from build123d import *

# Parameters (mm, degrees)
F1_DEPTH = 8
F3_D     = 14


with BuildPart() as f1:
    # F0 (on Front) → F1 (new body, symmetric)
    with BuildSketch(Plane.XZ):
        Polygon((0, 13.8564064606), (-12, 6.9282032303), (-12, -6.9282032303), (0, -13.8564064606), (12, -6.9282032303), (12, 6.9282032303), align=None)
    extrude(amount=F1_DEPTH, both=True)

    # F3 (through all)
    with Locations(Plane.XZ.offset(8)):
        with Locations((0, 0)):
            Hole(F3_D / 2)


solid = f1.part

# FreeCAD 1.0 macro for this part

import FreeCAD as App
import Part
import Sketcher

V = App.Vector
Q = App.Units.Quantity

doc = App.newDocument("Part")
body = doc.addObject("PartDesign::Body", "Body")

sketch1 = body.newObject("Sketcher::SketchObject", "Sketch")
sketch1.AttachmentSupport = (doc.getObject("XZ_Plane"), [""])
sketch1.MapMode = "FlatFace"
sketch1.addGeometry([
    Part.LineSegment(V(0, 13.856406, 0), V(-12, 6.928203, 0)),
    Part.LineSegment(V(-12, 6.928203, 0), V(-12, -6.928203, 0)),
    Part.LineSegment(V(-12, -6.928203, 0), V(0, -13.856406, 0)),
    Part.LineSegment(V(0, -13.856406, 0), V(12, -6.928203, 0)),
    Part.LineSegment(V(12, -6.928203, 0), V(12, 6.928203, 0)),
    Part.LineSegment(V(12, 6.928203, 0), V(0, 13.856406, 0)),
], False)
sketch1.addConstraint([
    Sketcher.Constraint("Coincident", 0, 2, 1, 1),
    Sketcher.Constraint("Coincident", 1, 2, 2, 1),
    Sketcher.Constraint("Coincident", 2, 2, 3, 1),
    Sketcher.Constraint("Coincident", 3, 2, 4, 1),
    Sketcher.Constraint("Coincident", 4, 2, 5, 1),
    Sketcher.Constraint("Coincident", 5, 2, 0, 1),
    Sketcher.Constraint("Vertical", 1),
    Sketcher.Constraint("Vertical", 4),
    Sketcher.Constraint("Symmetric", 0, 2, 3, 2, -1, 1),
    Sketcher.Constraint("Symmetric", 2, 2, 5, 2, -1, 1),
    Sketcher.Constraint("PointOnObject", 2, 2, -2),
    Sketcher.Constraint("Parallel", 2, 5),
    Sketcher.Constraint("Horizontal", 1, 2, 3, 2),
    Sketcher.Constraint("Angle", 0, Q("-150 deg")),
    Sketcher.Constraint("DistanceX", 0, 2, -1, 1, 12.0),
    Sketcher.Constraint("DistanceY", 1, 2, 1, 1, 13.856406),
])
pad1 = body.newObject("PartDesign::Pad", "Pad")
pad1.Profile = sketch1
pad1.Length = 16
pad1.Midplane = True

sketch2 = body.newObject("Sketcher::SketchObject", "Sketch001")
sketch2.AttachmentSupport = (doc.getObject("XZ_Plane"), [""])
sketch2.MapMode = "FlatFace"
sketch2.AttachmentOffset = App.Placement(V(0, 0, 8), App.Rotation())
sketch2.addGeometry(Part.Circle(V(0, 0, 0), V(0, 0, 1), 7), False)
sketch2.addConstraint([
    Sketcher.Constraint("Coincident", 0, 3, -1, 1),
    Sketcher.Constraint("Diameter", 0, 14.0),
])
doc.recompute()
hole = body.newObject("PartDesign::Hole", "Hole")
hole.Profile = sketch2
hole.ThreadType = "None"
hole.Diameter = 14
hole.DepthType = "ThroughAll"

doc.recompute()
